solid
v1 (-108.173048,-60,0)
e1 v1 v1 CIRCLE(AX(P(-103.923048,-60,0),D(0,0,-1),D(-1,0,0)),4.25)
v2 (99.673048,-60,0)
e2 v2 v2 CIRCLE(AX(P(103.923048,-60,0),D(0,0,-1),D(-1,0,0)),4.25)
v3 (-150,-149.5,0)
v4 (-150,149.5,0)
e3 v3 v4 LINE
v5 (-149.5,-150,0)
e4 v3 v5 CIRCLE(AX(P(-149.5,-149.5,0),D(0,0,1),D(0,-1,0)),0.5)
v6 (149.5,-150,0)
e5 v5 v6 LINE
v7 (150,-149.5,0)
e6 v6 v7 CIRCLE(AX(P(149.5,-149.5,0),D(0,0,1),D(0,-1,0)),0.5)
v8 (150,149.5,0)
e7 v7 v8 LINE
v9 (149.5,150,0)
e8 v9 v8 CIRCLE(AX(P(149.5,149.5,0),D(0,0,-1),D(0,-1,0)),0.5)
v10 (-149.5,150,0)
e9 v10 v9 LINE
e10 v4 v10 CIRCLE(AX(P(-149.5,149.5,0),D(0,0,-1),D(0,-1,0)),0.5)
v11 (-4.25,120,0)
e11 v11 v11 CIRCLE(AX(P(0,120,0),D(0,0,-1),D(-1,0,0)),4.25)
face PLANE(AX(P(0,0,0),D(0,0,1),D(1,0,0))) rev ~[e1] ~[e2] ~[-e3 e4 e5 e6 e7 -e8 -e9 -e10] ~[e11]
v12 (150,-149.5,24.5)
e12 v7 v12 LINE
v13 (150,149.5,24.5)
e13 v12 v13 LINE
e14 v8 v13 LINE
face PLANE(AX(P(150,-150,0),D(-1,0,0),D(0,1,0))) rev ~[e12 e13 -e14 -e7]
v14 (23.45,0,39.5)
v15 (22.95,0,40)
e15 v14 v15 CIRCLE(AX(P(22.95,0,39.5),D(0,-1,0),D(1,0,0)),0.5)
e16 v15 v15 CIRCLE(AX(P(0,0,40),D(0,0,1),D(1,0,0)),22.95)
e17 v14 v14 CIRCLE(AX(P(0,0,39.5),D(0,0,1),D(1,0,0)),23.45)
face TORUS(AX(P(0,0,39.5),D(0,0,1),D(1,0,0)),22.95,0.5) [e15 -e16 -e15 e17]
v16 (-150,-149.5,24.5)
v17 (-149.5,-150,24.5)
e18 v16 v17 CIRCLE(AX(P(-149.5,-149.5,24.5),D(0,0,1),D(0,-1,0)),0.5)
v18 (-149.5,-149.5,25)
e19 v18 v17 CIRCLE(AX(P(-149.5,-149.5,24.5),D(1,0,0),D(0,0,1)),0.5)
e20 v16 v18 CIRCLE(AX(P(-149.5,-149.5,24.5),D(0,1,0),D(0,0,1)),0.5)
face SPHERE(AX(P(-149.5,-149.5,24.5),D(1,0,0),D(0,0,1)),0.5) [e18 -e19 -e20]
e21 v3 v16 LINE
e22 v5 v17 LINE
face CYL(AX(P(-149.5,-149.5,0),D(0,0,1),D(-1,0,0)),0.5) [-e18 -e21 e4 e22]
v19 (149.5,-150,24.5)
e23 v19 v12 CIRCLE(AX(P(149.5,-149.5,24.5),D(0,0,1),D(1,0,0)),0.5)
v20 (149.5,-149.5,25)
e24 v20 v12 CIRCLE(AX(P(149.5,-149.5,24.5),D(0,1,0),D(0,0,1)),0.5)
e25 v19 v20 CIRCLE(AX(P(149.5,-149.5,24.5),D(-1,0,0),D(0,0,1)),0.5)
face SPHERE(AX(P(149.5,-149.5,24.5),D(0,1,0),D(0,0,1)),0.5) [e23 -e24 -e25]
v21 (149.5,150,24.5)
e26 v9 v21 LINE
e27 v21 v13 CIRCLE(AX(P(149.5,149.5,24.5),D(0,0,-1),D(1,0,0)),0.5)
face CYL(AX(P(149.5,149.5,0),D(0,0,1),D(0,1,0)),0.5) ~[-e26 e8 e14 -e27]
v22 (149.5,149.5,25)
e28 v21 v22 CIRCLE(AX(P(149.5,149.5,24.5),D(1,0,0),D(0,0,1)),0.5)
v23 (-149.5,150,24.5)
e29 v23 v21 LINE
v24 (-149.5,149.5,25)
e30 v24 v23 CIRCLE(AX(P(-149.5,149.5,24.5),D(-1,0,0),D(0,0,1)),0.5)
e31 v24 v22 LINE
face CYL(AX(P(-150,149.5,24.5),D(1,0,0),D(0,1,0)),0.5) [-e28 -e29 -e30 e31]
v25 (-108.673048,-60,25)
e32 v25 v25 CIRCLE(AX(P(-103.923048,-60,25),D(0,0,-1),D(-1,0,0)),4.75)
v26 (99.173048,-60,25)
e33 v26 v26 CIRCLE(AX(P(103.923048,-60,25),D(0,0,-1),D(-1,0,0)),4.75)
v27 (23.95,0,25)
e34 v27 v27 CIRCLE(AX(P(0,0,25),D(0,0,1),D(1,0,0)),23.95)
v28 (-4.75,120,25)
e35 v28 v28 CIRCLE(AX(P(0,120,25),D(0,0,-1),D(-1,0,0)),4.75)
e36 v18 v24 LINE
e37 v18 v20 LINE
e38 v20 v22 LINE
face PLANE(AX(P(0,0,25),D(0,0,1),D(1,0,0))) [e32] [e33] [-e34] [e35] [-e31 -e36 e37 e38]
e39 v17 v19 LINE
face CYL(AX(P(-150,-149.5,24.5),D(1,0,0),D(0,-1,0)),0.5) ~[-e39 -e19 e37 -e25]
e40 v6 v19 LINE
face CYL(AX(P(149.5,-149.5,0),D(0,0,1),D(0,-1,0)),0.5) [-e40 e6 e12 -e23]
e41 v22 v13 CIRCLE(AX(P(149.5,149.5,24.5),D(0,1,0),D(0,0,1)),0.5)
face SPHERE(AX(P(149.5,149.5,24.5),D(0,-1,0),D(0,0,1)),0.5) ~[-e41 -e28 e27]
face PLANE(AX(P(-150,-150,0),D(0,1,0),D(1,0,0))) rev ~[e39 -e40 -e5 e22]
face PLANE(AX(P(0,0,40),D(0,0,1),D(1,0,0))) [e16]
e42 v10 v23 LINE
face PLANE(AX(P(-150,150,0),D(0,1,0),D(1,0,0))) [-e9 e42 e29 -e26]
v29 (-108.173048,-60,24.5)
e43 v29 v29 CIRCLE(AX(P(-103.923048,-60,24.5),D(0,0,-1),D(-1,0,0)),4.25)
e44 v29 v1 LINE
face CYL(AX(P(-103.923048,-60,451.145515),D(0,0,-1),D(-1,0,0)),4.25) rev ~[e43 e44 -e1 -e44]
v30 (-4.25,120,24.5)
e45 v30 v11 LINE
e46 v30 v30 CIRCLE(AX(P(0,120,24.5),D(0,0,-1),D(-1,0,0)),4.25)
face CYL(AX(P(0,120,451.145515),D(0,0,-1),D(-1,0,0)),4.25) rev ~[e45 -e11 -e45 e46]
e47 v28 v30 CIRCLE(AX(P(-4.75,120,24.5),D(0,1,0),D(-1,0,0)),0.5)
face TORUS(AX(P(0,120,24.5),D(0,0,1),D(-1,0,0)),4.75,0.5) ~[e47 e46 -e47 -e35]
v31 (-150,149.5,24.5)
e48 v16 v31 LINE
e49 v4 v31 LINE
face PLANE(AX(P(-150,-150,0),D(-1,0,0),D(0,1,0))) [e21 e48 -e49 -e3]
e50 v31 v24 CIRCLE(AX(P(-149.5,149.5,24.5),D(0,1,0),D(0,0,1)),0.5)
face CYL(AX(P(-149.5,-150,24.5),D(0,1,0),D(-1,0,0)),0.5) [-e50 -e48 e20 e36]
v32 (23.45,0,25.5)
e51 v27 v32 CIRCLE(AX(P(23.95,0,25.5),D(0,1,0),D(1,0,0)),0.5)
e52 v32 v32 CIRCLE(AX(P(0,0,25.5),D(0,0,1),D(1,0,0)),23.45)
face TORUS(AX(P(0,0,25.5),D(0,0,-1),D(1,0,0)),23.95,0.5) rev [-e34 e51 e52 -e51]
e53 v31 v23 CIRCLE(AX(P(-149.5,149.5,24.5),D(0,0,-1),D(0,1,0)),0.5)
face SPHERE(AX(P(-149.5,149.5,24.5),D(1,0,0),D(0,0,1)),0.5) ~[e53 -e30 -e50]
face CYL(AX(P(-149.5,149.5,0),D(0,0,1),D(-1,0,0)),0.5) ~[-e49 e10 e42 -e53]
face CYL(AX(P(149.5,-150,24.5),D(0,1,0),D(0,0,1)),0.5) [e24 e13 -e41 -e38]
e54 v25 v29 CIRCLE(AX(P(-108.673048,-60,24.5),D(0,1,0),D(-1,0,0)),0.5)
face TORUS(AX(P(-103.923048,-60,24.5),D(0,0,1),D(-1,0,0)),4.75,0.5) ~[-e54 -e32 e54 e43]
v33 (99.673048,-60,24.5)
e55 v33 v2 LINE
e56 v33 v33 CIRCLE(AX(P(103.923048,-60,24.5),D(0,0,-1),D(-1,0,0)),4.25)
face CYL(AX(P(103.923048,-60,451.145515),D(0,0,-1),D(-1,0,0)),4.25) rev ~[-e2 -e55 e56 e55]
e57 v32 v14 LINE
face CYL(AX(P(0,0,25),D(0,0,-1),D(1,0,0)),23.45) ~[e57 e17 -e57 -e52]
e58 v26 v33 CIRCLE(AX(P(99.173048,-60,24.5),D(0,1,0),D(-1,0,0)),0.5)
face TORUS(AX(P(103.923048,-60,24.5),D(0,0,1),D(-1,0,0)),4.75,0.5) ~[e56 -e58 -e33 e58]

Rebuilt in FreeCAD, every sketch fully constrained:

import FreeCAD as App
import Part
import Sketcher

V = App.Vector
Q = App.Units.Quantity


def edges_at(feature, points):
    """Names of the edges that pass closest to the given points."""
    edges = feature.Shape.Edges
    near = lambda p: min(range(len(edges)), key=lambda i: edges[i].distToShape(Part.Vertex(*p))[0])
    return sorted({f"Edge{near(p) + 1}" for p in points})

doc = App.newDocument("Part")
body = doc.addObject("PartDesign::Body", "Body")

sketch1 = body.newObject("Sketcher::SketchObject", "Sketch")
sketch1.AttachmentSupport = (doc.getObject("XY_Plane"), [""])
sketch1.MapMode = "FlatFace"
sketch1.addGeometry([
    Part.LineSegment(V(-150, 150, 0), V(-150, -150, 0)),
    Part.LineSegment(V(-150, -150, 0), V(150, -150, 0)),
    Part.LineSegment(V(150, -150, 0), V(150, 150, 0)),
    Part.LineSegment(V(150, 150, 0), V(-150, 150, 0)),
], False)
sketch1.addConstraint([
    Sketcher.Constraint("Coincident", 0, 2, 1, 1),
    Sketcher.Constraint("Coincident", 1, 2, 2, 1),
    Sketcher.Constraint("Coincident", 2, 2, 3, 1),
    Sketcher.Constraint("Coincident", 3, 2, 0, 1),
    Sketcher.Constraint("Vertical", 0),
    Sketcher.Constraint("Horizontal", 1),
    Sketcher.Constraint("Vertical", 2),
    Sketcher.Constraint("Horizontal", 3),
    Sketcher.Constraint("Symmetric", 0, 2, 2, 2, -1, 1),
    Sketcher.Constraint("Equal", 3, 0),
    Sketcher.Constraint("DistanceX", 1, 1, 1, 2, Q("300 mm")),
])
pad1 = body.newObject("PartDesign::Pad", "Pad")
pad1.Profile = sketch1
pad1.Length = 25

sketch2 = body.newObject("Sketcher::SketchObject", "Sketch001")
sketch2.AttachmentSupport = (doc.getObject("XY_Plane"), [""])
sketch2.MapMode = "FlatFace"
sketch2.AttachmentOffset = App.Placement(V(0, 0, 25), App.Rotation())
sketch2.addGeometry(Part.Circle(V(0, 0, 0), V(0, 0, 1), 23.45), False)
sketch2.addConstraint([
    Sketcher.Constraint("Coincident", 0, 3, -1, 1),
    Sketcher.Constraint("Diameter", 0, Q("46.9 mm")),
])
pad2 = body.newObject("PartDesign::Pad", "Pad001")
pad2.Profile = sketch2
pad2.Length = 15

sketch3 = body.newObject("Sketcher::SketchObject", "Sketch002")
sketch3.AttachmentSupport = (doc.getObject("XY_Plane"), [""])
sketch3.MapMode = "FlatFace"
sketch3.AttachmentOffset = App.Placement(V(0, 0, 25), App.Rotation())
sketch3.addGeometry([
    Part.Circle(V(0, 120, 0), V(0, 0, 1), 4.25),
    Part.Circle(V(103.923048, -60, 0), V(0, 0, 1), 4.25),
    Part.Circle(V(-103.923048, -60, 0), V(0, 0, 1), 4.25),
], False)
sketch3.addConstraint([
    Sketcher.Constraint("Equal", 0, 1),
    Sketcher.Constraint("Equal", 1, 2),
    Sketcher.Constraint("Symmetric", 1, 3, 2, 3, -2),
    Sketcher.Constraint("PointOnObject", 0, 3, -2),
    Sketcher.Constraint("Diameter", 0, Q("8.5 mm")),
    Sketcher.Constraint("DistanceY", -1, 1, 0, 3, Q("120 mm")),
    Sketcher.Constraint("DistanceY", 1, 3, -1, 1, Q("60 mm")),
    Sketcher.Constraint("DistanceX", -1, 1, 1, 3, Q("103.923048 mm")),
])
doc.recompute()
hole = body.newObject("PartDesign::Hole", "Hole")
hole.Profile = sketch3
hole.ThreadType = "None"
hole.Diameter = 8.5
hole.DepthType = "ThroughAll"
doc.recompute()

fillet = body.newObject("PartDesign::Fillet", "Fillet")
fillet.Base = (hole, edges_at(hole, [
    (-23.45, 0, 40),
    (150, 0, 25),
    (0, -150, 25),
    (0, 150, 25),
    (-150, 0, 25),
    (-99.673, -60, 25),
    (-23.45, 0, 25),
    (108.173, -60, 25),
    (4.25, 120, 25),
    (150, -150, 12.5),
    (150, 150, 12.5),
    (-150, -150, 12.5),
    (-150, 150, 12.5),
]))
fillet.Radius = 0.5

doc.recompute()
